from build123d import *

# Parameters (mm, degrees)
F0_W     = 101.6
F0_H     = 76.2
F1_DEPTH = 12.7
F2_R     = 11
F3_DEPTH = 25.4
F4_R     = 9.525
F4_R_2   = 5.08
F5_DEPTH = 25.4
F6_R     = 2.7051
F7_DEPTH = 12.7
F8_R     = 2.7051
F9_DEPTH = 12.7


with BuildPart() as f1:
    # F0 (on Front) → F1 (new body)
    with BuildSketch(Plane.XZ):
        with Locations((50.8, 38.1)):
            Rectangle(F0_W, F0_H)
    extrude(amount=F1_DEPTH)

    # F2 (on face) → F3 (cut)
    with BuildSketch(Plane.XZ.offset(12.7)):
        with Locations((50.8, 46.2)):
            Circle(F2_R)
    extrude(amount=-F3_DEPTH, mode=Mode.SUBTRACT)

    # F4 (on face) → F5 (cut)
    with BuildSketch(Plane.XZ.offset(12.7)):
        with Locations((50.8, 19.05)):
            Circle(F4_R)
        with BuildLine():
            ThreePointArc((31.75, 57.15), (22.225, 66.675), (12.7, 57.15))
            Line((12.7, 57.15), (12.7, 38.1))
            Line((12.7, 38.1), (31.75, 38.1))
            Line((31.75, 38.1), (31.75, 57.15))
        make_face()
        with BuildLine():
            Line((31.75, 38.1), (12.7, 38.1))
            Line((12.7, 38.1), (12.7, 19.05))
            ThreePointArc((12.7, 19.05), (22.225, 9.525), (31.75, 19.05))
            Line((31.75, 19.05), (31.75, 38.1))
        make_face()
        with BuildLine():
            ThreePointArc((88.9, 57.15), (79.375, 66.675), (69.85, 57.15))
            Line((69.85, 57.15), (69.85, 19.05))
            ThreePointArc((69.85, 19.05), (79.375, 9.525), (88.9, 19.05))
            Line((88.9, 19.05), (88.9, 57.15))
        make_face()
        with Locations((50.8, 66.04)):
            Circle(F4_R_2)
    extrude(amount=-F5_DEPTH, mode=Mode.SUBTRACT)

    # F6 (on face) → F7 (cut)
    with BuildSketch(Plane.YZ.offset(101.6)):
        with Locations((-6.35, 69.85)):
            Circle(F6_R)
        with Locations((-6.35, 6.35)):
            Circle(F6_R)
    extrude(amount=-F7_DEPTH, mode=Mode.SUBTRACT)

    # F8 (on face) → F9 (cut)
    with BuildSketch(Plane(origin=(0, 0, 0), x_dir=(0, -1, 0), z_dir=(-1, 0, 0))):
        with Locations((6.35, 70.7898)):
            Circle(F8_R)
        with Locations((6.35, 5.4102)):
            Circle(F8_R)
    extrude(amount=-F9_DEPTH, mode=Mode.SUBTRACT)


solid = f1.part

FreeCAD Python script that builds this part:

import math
import FreeCAD as App
import Part
import Sketcher
Q = App.Units.Quantity


def add_polygon(sketch, points):
    """Adds a closed chain of lines whose ends are joined by coincident constraints."""
    first, n = sketch.GeometryCount, len(points)
    for a, b in zip(points, points[1:] + points[:1]):
        sketch.addGeometry(Part.LineSegment(App.Vector(*a, 0), App.Vector(*b, 0)), False)
    for i in range(n):
        sketch.addConstraint(Sketcher.Constraint("Coincident", first + i, 2, first + (i + 1) % n, 1))

doc = App.newDocument("Part")
params = doc.addObject("Spreadsheet::Sheet", "Params")
for row, (alias, value) in enumerate([
    ("sketch1_width", "4 in"),
    ("sketch1_height", "3 in"),
    ("pad1_length", "0.5 in"),
    ("pocket1_length", "1 in"),
    ("sketch3_diameter", "0.4 in"),
    ("sketch3_diameter2", "0.75 in"),
    ("sketch3_height", "1.5 in"),
    ("pocket2_length", "1 in"),
    ("sketch4_diameter", "0.213 in"),
    ("pocket3_length", "0.5 in"),
    ("sketch5_diameter", "0.213 in"),
    ("pocket4_length", "0.5 in"),
], start=1):
    params.set(f"A{row}", alias)
    params.set(f"B{row}", "=" + value)
    params.setAlias(f"B{row}", alias)

body = doc.addObject("PartDesign::Body", "Body")

# Sketch on XZ plane
sketch1 = body.newObject("Sketcher::SketchObject", "Sketch")
sketch1.AttachmentSupport = (doc.getObject("XZ_Plane"), [""])
sketch1.MapMode = "FlatFace"
add_polygon(sketch1, [(0, 76), (0, 0), (102, 0), (102, 76)])  # lines 0-3
sketch1.addConstraint([
    Sketcher.Constraint("Vertical", 0),
    Sketcher.Constraint("Horizontal", 1),
    Sketcher.Constraint("Vertical", 2),
    Sketcher.Constraint("Horizontal", 3),
    Sketcher.Constraint("Coincident", 0, 2, -1, 1),
    Sketcher.Constraint("DistanceX", 1, 1, 1, 2, Q("4 in")),
    Sketcher.Constraint("DistanceY", 0, 2, 0, 1, Q("3 in")),
])
sketch1.setExpression("Constraints[9]", "Params.sketch1_width")
sketch1.setExpression("Constraints[10]", "Params.sketch1_height")
pad1 = body.newObject("PartDesign::Pad", "Pad")
pad1.Profile = sketch1
pad1.setExpression("Length", "Params.pad1_length")

# Sketch on XZ plane
sketch2 = body.newObject("Sketcher::SketchObject", "Sketch001")
sketch2.AttachmentSupport = (doc.getObject("XZ_Plane"), [""])
sketch2.MapMode = "FlatFace"
sketch2.AttachmentOffset = App.Placement(App.Vector(0, 0, 0.5 * 25.4), App.Rotation())
sketch2.addGeometry(Part.Circle(App.Vector(51, 46, 0), App.Vector(0, 0, 1), 11), False)
sketch2.addConstraint([
    Sketcher.Constraint("DistanceX", -1, 1, 0, 3, Q("2 in")),
    Sketcher.Constraint("Diameter", 0, Q("22 mm")),
    Sketcher.Constraint("DistanceY", -1, 1, 0, 3, Q("46.2 mm")),
])
pocket1 = body.newObject("PartDesign::Pocket", "Pocket")
pocket1.Profile = sketch2
pocket1.setExpression("Length", "Params.pocket1_length")

# Sketch on XZ plane
sketch3 = body.newObject("Sketcher::SketchObject", "Sketch002")
sketch3.AttachmentSupport = (doc.getObject("XZ_Plane"), [""])
sketch3.MapMode = "FlatFace"
sketch3.AttachmentOffset = App.Placement(App.Vector(0, 0, 0.5 * 25.4), App.Rotation())
sketch3.addGeometry([
    Part.Circle(App.Vector(51, 19, 0), App.Vector(0, 0, 1), 10),  # 0
    Part.ArcOfCircle(Part.Circle(App.Vector(22, 57, 0), App.Vector(0, 0, 1), 10), math.radians(0), math.radians(180)),  # 1
    Part.LineSegment(App.Vector(13, 57, 0), App.Vector(13, 19, 0)),  # 2
    Part.ArcOfCircle(Part.Circle(App.Vector(22, 19, 0), App.Vector(0, 0, 1), 10), math.radians(180), math.radians(360)),  # 3
    Part.LineSegment(App.Vector(32, 19, 0), App.Vector(32, 57, 0)),  # 4
    Part.ArcOfCircle(Part.Circle(App.Vector(79, 57, 0), App.Vector(0, 0, 1), 10), math.radians(0), math.radians(180)),  # 5
    Part.LineSegment(App.Vector(70, 57, 0), App.Vector(70, 19, 0)),  # 6
    Part.ArcOfCircle(Part.Circle(App.Vector(79, 19, 0), App.Vector(0, 0, 1), 10), math.radians(180), math.radians(360)),  # 7
    Part.LineSegment(App.Vector(89, 19, 0), App.Vector(89, 57, 0)),  # 8
    Part.Circle(App.Vector(51, 66, 0), App.Vector(0, 0, 1), 5),  # 9
], False)
sketch3.addConstraint([
    Sketcher.Constraint("Tangent", 1, 2, 2, 1),
    Sketcher.Constraint("Tangent", 2, 2, 3, 1),
    Sketcher.Constraint("Tangent", 3, 2, 4, 1),
    Sketcher.Constraint("Tangent", 4, 2, 1, 1),
    Sketcher.Constraint("Tangent", 5, 2, 6, 1),
    Sketcher.Constraint("Tangent", 6, 2, 7, 1),
    Sketcher.Constraint("Tangent", 7, 2, 8, 1),
    Sketcher.Constraint("Tangent", 8, 2, 5, 1),
    Sketcher.Constraint("Vertical", 2),
    Sketcher.Constraint("Vertical", 4),
    Sketcher.Constraint("Vertical", 6),
    Sketcher.Constraint("Vertical", 8),
    Sketcher.Constraint("Equal", 0, 1),
    Sketcher.Constraint("Equal", 3, 5),
    Sketcher.Constraint("Horizontal", 0, 3, 3, 3),
    Sketcher.Constraint("Horizontal", 1, 3, 5, 3),
    Sketcher.Constraint("Horizontal", 3, 3, 7, 3),
    Sketcher.Constraint("Vertical", 0, 3, 9, 3),
    Sketcher.Constraint("Diameter", 9, Q("0.4 in")),
    Sketcher.Constraint("Diameter", 0, Q("0.75 in")),
    Sketcher.Constraint("DistanceY", 2, 2, 2, 1, Q("1.5 in")),
    Sketcher.Constraint("DistanceX", -1, 1, 0, 3, Q("2 in")),
    Sketcher.Constraint("DistanceY", -1, 1, 9, 3, Q("2.6 in")),
    Sketcher.Constraint("DistanceX", -1, 1, 1, 2, Q("0.5 in")),
    Sketcher.Constraint("DistanceX", -1, 1, 7, 2, Q("3.5 in")),
    Sketcher.Constraint("DistanceY", -1, 1, 0, 3, Q("0.75 in")),
])
sketch3.setExpression("Constraints[18]", "Params.sketch3_diameter")
sketch3.setExpression("Constraints[19]", "Params.sketch3_diameter2")
sketch3.setExpression("Constraints[20]", "Params.sketch3_height")
pocket2 = body.newObject("PartDesign::Pocket", "Pocket001")
pocket2.Profile = sketch3
pocket2.setExpression("Length", "Params.pocket2_length")

# Sketch on YZ plane
sketch4 = body.newObject("Sketcher::SketchObject", "Sketch003")
sketch4.AttachmentSupport = (doc.getObject("YZ_Plane"), [""])
sketch4.MapMode = "FlatFace"
sketch4.AttachmentOffset = App.Placement(App.Vector(0, 0, 4 * 25.4), App.Rotation())
sketch4.addGeometry([
    Part.Circle(App.Vector(-6.3, 69.8, 0), App.Vector(0, 0, 1), 2.7),
    Part.Circle(App.Vector(-6.3, 6.3, 0), App.Vector(0, 0, 1), 2.7),
], False)
sketch4.addConstraint([
    Sketcher.Constraint("Equal", 0, 1),
    Sketcher.Constraint("Vertical", 0, 3, 1, 3),
    Sketcher.Constraint("Diameter", 0, Q("0.213 in")),
    Sketcher.Constraint("DistanceY", 1, 3, 0, 3, Q("2.5 in")),
    Sketcher.Constraint("DistanceX", 0, 3, -1, 1, Q("0.25 in")),
    Sketcher.Constraint("DistanceY", -1, 1, 0, 3, Q("2.75 in")),
])
sketch4.setExpression("Constraints[2]", "Params.sketch4_diameter")
pocket3 = body.newObject("PartDesign::Pocket", "Pocket002")
pocket3.Profile = sketch4
pocket3.setExpression("Length", "Params.pocket3_length")

# Sketch on YZ plane
sketch5 = body.newObject("Sketcher::SketchObject", "Sketch004")
sketch5.AttachmentSupport = (doc.getObject("YZ_Plane"), [""])
sketch5.MapMode = "FlatFace"
sketch5.addGeometry([
    Part.Circle(App.Vector(-6.3, 70.8, 0), App.Vector(0, 0, 1), 2.7),
    Part.Circle(App.Vector(-6.3, 5.4, 0), App.Vector(0, 0, 1), 2.7),
], False)
sketch5.addConstraint([
    Sketcher.Constraint("Equal", 0, 1),
    Sketcher.Constraint("Vertical", 0, 3, 1, 3),
    Sketcher.Constraint("Diameter", 0, Q("0.213 in")),
    Sketcher.Constraint("DistanceX", 0, 3, -1, 1, Q("0.25 in")),
    Sketcher.Constraint("DistanceY", -1, 1, 0, 3, Q("2.787 in")),
    Sketcher.Constraint("DistanceY", -1, 1, 1, 3, Q("0.213 in")),
])
sketch5.setExpression("Constraints[2]", "Params.sketch5_diameter")
pocket4 = body.newObject("PartDesign::Pocket", "Pocket003")
pocket4.Profile = sketch5
pocket4.setExpression("Length", "Params.pocket4_length")
pocket4.Reversed = True

doc.recompute()
